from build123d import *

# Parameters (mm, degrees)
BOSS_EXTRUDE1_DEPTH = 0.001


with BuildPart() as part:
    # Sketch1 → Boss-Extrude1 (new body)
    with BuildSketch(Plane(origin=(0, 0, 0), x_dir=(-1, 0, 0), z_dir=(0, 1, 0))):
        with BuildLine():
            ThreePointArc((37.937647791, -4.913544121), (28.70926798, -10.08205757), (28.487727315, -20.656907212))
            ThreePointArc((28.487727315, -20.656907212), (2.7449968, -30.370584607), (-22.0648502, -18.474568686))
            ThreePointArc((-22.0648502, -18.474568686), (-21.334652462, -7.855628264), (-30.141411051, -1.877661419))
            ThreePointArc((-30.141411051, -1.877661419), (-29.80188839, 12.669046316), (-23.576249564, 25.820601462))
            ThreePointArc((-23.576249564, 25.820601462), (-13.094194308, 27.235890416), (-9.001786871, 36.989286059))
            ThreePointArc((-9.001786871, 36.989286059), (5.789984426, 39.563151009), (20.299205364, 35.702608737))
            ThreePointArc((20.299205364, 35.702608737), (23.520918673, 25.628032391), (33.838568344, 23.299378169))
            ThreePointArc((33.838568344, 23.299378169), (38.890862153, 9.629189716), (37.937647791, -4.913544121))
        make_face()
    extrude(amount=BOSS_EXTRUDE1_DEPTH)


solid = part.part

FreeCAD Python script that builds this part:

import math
import FreeCAD as App
import Part
import Sketcher
from FreeCAD import Vector

doc = App.newDocument("Part")
body = doc.addObject("PartDesign::Body", "Body")

sketch1 = body.newObject("Sketcher::SketchObject", "Sketch")
sketch1.AttachmentSupport = (doc.getObject("XZ_Plane"), [""])
sketch1.MapMode = "FlatFace"
sketch1.addGeometry([
    Part.ArcOfCircle(Part.Circle(Vector(-38, -16, 0), Vector(0, 0, 1), 11), math.radians(-29), math.radians(91)),
    Part.ArcOfCircle(Part.Circle(Vector(-4, 5, 0), Vector(0, 0, 1), 35), math.radians(148), math.radians(196)),
    Part.ArcOfCircle(Part.Circle(Vector(-31, 33, 0), Vector(0, 0, 1), 11), math.radians(-107), math.radians(12)),
    Part.ArcOfCircle(Part.Circle(Vector(-4, 5, 0), Vector(0, 0, 1), 35), math.radians(68), math.radians(117)),
    Part.ArcOfCircle(Part.Circle(Vector(20, 36, 0), Vector(0, 0, 1), 11), math.radians(173), math.radians(292)),
    Part.ArcOfCircle(Part.Circle(Vector(-4, 5, 0), Vector(0, 0, 1), 35), math.radians(-11), math.radians(37)),
    Part.ArcOfCircle(Part.Circle(Vector(31, -13, 0), Vector(0, 0, 1), 11), math.radians(94), math.radians(214)),
    Part.ArcOfCircle(Part.Circle(Vector(-4, 5, 0), Vector(0, 0, 1), 35), math.radians(-134), math.radians(-41)),
], False)
sketch1.addConstraint([
    Sketcher.Constraint("Coincident", 0, 2, 1, 2),
    Sketcher.Constraint("Coincident", 1, 1, 2, 1),
    Sketcher.Constraint("Coincident", 2, 2, 3, 2),
    Sketcher.Constraint("Coincident", 3, 1, 4, 1),
    Sketcher.Constraint("Coincident", 4, 2, 5, 2),
    Sketcher.Constraint("Coincident", 5, 1, 6, 1),
    Sketcher.Constraint("Coincident", 6, 2, 7, 2),
    Sketcher.Constraint("Coincident", 7, 1, 0, 1),
    Sketcher.Constraint("Coincident", 3, 3, 1, 3),
    Sketcher.Constraint("Coincident", 5, 3, 1, 3),
    Sketcher.Constraint("Coincident", 7, 3, 1, 3),
    Sketcher.Constraint("Equal", 0, 2),
    Sketcher.Constraint("Equal", 1, 3),
    Sketcher.Constraint("Equal", 2, 4),
    Sketcher.Constraint("Equal", 3, 5),
    Sketcher.Constraint("Equal", 5, 7),
    Sketcher.Constraint("Radius", 1, 35.0),
    Sketcher.Constraint("Radius", 0, 10.65),
    Sketcher.Constraint("Radius", 6, 10.681935),
    Sketcher.Constraint("DistanceY", 0, 3, -1, 1, 15.563102),
    Sketcher.Constraint("DistanceY", -1, 1, 4, 2, 25.820601),
    Sketcher.Constraint("DistanceX", 0, 3, -1, 1, 37.840569),
    Sketcher.Constraint("DistanceX", 1, 3, -1, 1, 4.25453),
    Sketcher.Constraint("DistanceX", 2, 3, -1, 1, 30.714911),
    Sketcher.Constraint("DistanceX", -1, 1, 6, 3, 30.939679),
    Sketcher.Constraint("DistanceX", 1, 1, -1, 1, 33.838568),
    Sketcher.Constraint("DistanceY", -1, 1, 1, 1, 23.299378),
    Sketcher.Constraint("DistanceX", -1, 1, 5, 1, 30.141411),
    Sketcher.Constraint("DistanceY", 3, 3, 4, 3, 31.09237),
])
pad1 = body.newObject("PartDesign::Pad", "Pad")
pad1.Profile = sketch1
pad1.Length = 0.001
pad1.Reversed = True

doc.recompute()
